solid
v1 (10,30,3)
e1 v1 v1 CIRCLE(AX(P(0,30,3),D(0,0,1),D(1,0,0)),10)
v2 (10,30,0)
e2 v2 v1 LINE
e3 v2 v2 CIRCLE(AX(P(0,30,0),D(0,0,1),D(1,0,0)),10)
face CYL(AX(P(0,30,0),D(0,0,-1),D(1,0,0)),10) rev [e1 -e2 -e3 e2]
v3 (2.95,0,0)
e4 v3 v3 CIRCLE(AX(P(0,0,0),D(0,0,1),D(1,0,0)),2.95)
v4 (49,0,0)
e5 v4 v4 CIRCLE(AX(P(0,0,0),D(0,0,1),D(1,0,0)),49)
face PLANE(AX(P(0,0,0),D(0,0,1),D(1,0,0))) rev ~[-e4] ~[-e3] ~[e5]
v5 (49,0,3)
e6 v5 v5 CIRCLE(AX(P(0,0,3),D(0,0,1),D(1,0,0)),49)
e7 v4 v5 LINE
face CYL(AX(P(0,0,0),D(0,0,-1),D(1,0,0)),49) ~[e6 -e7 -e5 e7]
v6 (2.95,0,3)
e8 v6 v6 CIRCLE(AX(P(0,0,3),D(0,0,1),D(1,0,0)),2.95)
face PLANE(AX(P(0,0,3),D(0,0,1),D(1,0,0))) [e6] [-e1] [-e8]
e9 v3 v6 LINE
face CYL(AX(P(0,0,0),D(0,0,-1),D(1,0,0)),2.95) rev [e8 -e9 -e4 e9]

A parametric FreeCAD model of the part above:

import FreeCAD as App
import Part
import Sketcher

V = App.Vector

doc = App.newDocument("Part")
body = doc.addObject("PartDesign::Body", "Body")

sketch1 = body.newObject("Sketcher::SketchObject", "Sketch")
sketch1.AttachmentSupport = (doc.getObject("XY_Plane"), [""])
sketch1.MapMode = "FlatFace"
sketch1.addGeometry([
    Part.Circle(V(0, 0, 0), V(0, 0, 1), 49),
    Part.Circle(V(0, 0, 0), V(0, 0, 1), 3),
    Part.Circle(V(0, 30, 0), V(0, 0, 1), 10),
], False)
sketch1.addConstraint([
    Sketcher.Constraint("Coincident", 0, 3, -1, 1),
    Sketcher.Constraint("Coincident", 1, 3, -1, 1),
    Sketcher.Constraint("PointOnObject", 2, 3, -2),
    Sketcher.Constraint("Diameter", 0, 98.0),
    Sketcher.Constraint("Diameter", 2, 20.0),
    Sketcher.Constraint("Diameter", 1, 5.9),
    Sketcher.Constraint("DistanceY", -1, 1, 2, 3, 30.0),
])
pad1 = body.newObject("PartDesign::Pad", "Pad")
pad1.Profile = sketch1
pad1.Length = 3

doc.recompute()
